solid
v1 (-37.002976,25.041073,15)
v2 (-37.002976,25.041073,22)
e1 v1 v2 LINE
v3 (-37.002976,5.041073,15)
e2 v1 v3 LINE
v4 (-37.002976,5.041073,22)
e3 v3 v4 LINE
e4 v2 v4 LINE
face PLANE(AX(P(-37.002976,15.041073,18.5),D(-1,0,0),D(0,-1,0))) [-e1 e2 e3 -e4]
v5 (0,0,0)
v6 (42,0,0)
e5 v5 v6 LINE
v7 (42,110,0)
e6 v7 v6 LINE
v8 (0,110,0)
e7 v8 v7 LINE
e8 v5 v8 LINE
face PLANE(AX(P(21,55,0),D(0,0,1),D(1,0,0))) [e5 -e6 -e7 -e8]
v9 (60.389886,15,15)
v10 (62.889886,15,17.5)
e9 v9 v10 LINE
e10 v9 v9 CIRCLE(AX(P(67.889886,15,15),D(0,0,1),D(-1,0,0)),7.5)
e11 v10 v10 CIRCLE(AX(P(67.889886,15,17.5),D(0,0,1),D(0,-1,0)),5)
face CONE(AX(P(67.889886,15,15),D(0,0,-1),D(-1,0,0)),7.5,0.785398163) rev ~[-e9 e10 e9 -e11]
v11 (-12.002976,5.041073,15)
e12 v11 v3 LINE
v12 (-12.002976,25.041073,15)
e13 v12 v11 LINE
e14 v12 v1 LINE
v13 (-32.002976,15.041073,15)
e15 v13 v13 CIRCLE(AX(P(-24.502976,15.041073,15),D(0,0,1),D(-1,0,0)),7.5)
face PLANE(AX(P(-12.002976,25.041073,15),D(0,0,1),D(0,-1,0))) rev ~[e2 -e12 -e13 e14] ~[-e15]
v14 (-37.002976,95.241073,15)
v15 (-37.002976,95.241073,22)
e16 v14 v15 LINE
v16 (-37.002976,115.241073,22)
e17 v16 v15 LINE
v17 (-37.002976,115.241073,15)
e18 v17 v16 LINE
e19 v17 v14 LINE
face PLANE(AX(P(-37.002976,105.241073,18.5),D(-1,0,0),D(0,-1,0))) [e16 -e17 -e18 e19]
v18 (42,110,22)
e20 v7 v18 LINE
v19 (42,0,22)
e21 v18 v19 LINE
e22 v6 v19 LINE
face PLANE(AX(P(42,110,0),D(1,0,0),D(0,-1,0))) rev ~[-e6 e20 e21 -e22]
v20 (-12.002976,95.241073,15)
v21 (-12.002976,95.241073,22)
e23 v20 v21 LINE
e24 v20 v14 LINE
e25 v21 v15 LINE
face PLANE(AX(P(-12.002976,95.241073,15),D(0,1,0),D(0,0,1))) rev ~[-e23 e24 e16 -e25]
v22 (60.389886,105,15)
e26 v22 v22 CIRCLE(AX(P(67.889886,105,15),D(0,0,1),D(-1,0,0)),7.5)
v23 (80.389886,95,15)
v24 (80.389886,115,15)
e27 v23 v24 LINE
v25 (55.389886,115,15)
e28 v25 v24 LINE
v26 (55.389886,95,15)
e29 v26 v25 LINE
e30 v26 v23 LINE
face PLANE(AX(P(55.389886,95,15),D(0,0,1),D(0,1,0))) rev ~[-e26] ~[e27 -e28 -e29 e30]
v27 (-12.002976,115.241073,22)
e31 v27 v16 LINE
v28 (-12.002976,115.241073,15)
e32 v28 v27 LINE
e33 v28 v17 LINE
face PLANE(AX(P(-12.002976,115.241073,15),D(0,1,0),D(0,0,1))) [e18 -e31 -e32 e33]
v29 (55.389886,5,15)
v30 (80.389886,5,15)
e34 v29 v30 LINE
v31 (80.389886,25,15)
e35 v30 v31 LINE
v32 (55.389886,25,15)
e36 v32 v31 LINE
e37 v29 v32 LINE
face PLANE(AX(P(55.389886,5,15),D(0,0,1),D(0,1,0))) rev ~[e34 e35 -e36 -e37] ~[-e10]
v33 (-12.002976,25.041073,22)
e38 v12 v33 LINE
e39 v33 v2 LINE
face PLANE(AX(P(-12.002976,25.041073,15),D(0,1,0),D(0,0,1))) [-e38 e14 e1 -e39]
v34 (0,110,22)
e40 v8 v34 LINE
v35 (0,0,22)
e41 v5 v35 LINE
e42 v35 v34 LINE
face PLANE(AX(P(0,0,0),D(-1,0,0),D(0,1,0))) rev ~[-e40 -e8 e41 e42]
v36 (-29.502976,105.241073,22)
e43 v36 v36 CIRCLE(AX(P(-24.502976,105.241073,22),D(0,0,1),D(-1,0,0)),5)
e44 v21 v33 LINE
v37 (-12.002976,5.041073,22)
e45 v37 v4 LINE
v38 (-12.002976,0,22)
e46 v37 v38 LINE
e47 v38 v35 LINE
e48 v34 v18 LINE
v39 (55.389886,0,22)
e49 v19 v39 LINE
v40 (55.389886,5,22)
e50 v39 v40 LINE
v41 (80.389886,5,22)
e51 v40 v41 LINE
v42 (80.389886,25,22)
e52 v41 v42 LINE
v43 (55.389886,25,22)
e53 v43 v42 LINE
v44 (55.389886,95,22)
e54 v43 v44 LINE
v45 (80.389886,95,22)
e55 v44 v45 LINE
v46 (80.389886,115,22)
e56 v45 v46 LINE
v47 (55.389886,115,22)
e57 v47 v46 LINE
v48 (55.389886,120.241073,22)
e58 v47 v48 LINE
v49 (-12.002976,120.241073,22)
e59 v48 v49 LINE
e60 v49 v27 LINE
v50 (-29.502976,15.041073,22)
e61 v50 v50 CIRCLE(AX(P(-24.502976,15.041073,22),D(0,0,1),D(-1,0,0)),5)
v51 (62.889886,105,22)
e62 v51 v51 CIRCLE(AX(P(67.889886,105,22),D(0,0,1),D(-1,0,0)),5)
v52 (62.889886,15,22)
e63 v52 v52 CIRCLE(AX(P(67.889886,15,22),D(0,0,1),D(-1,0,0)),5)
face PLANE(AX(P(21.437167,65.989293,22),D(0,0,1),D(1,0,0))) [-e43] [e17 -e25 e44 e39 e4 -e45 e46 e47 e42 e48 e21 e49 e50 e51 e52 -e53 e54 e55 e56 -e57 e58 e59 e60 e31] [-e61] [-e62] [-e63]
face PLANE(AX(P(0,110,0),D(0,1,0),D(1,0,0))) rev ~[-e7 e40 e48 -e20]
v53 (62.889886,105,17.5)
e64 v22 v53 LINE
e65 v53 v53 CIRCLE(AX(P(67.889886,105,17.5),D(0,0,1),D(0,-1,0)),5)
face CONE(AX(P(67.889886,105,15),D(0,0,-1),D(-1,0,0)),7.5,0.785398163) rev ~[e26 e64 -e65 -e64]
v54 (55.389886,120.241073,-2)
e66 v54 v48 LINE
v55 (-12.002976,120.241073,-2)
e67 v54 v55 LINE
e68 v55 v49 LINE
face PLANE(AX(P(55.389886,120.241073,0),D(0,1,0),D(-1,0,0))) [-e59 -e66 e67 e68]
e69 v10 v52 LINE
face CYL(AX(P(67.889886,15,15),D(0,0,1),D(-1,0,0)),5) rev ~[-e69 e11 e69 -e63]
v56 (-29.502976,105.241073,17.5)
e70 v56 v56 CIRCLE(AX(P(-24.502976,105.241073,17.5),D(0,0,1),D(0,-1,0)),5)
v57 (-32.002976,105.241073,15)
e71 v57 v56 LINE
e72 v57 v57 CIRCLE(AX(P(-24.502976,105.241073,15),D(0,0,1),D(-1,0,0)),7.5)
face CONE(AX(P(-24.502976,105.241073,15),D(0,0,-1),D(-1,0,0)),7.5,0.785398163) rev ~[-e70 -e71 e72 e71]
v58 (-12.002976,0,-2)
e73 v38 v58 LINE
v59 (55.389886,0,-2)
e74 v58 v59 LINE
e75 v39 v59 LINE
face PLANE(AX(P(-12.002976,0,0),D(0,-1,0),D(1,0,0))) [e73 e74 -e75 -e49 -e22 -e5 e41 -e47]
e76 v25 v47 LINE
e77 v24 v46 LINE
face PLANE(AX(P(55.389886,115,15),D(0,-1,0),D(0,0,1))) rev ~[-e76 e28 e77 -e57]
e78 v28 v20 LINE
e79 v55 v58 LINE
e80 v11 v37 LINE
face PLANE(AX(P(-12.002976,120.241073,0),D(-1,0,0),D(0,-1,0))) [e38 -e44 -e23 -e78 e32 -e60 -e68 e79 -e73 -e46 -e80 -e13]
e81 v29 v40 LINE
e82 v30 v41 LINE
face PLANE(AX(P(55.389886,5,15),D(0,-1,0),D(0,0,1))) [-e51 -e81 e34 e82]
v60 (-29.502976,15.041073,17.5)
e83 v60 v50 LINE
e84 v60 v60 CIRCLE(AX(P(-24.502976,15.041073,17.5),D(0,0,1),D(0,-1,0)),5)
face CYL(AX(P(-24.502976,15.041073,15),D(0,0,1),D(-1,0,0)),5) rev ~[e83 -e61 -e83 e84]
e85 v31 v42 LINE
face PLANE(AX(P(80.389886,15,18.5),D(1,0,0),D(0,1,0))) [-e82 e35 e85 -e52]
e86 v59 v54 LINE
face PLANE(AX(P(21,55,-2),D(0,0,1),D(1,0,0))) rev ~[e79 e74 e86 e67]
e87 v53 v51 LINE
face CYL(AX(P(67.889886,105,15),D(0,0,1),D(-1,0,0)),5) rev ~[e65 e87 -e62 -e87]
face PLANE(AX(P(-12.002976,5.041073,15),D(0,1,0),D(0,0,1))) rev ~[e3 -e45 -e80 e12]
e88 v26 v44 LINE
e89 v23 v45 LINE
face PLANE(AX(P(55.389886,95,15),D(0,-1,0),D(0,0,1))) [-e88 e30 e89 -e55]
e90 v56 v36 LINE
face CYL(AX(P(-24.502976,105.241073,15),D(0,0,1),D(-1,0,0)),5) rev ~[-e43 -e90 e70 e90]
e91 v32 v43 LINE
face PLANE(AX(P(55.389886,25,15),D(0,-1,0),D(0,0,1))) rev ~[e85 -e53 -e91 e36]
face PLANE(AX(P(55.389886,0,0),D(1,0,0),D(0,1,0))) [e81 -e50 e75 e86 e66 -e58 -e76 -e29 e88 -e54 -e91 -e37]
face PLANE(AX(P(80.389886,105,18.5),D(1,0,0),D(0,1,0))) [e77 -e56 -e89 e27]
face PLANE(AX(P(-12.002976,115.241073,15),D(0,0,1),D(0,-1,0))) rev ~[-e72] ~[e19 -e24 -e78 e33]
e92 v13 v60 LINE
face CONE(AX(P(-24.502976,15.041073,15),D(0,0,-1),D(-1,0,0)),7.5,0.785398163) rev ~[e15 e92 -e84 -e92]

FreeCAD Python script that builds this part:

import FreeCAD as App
import Part
import Sketcher
from FreeCAD import Vector
Q = App.Units.Quantity

doc = App.newDocument("Part")
body = doc.addObject("PartDesign::Body", "Body")

sketch1 = body.newObject("Sketcher::SketchObject", "Sketch")
sketch1.AttachmentSupport = (doc.getObject("XY_Plane"), [""])
sketch1.MapMode = "FlatFace"
sketch1.addGeometry(Part.LineSegment(Vector(-12.002976, 0, 0), Vector(0, 0, 0)), False)
sketch1.addGeometry(Part.LineSegment(Vector(0, 0, 0), Vector(0, 110, 0)), False)
sketch1.addGeometry(Part.LineSegment(Vector(0, 110, 0), Vector(42, 110, 0)), False)
sketch1.addGeometry(Part.LineSegment(Vector(42, 110, 0), Vector(42, 0, 0)), False)
sketch1.addGeometry(Part.LineSegment(Vector(42, 0, 0), Vector(55.389886, 0, 0)), False)
sketch1.addGeometry(Part.LineSegment(Vector(55.389886, 0, 0), Vector(55.389886, 120.241073, 0)), False)
sketch1.addGeometry(Part.LineSegment(Vector(55.389886, 120.241073, 0), Vector(-12.002976, 120.241073, 0)), False)
sketch1.addGeometry(Part.LineSegment(Vector(-12.002976, 120.241073, 0), Vector(-12.002976, 0, 0)), False)
sketch1.addConstraint(Sketcher.Constraint("Coincident", 0, 2, 1, 1))
sketch1.addConstraint(Sketcher.Constraint("Coincident", 1, 2, 2, 1))
sketch1.addConstraint(Sketcher.Constraint("Coincident", 2, 2, 3, 1))
sketch1.addConstraint(Sketcher.Constraint("Coincident", 3, 2, 4, 1))
sketch1.addConstraint(Sketcher.Constraint("Coincident", 4, 2, 5, 1))
sketch1.addConstraint(Sketcher.Constraint("Coincident", 5, 2, 6, 1))
sketch1.addConstraint(Sketcher.Constraint("Coincident", 6, 2, 7, 1))
sketch1.addConstraint(Sketcher.Constraint("Coincident", 7, 2, 0, 1))
sketch1.addConstraint(Sketcher.Constraint("Horizontal", 0))
sketch1.addConstraint(Sketcher.Constraint("Vertical", 1))
sketch1.addConstraint(Sketcher.Constraint("Horizontal", 2))
sketch1.addConstraint(Sketcher.Constraint("Vertical", 3))
sketch1.addConstraint(Sketcher.Constraint("Horizontal", 4))
sketch1.addConstraint(Sketcher.Constraint("Vertical", 5))
sketch1.addConstraint(Sketcher.Constraint("Horizontal", 6))
sketch1.addConstraint(Sketcher.Constraint("Vertical", 7))
sketch1.addConstraint(Sketcher.Constraint("Coincident", 0, 2, -1, 1))
sketch1.addConstraint(Sketcher.Constraint("PointOnObject", 3, 2, -1))
sketch1.addConstraint(Sketcher.Constraint("DistanceX", 2, 1, 2, 2, Q("42 mm")))
sketch1.addConstraint(Sketcher.Constraint("DistanceY", 1, 1, 1, 2, Q("110 mm")))
sketch1.addConstraint(Sketcher.Constraint("DistanceX", 6, 2, 6, 1, Q("67.392862 mm")))
sketch1.addConstraint(Sketcher.Constraint("DistanceX", 0, 1, 0, 2, Q("12.002976 mm")))
sketch1.addConstraint(Sketcher.Constraint("DistanceY", 5, 1, 5, 2, Q("120.241073 mm")))
pad1 = body.newObject("PartDesign::Pad", "Pad")
pad1.Profile = sketch1
pad1.Length = 22

sketch2 = body.newObject("Sketcher::SketchObject", "Sketch001")
sketch2.AttachmentSupport = (doc.getObject("XY_Plane"), [""])
sketch2.MapMode = "FlatFace"
sketch2.addGeometry(Part.LineSegment(Vector(55.389886, 0, 0), Vector(55.389886, 120.241073, 0)), False)
sketch2.addGeometry(Part.LineSegment(Vector(55.389886, 120.241073, 0), Vector(-12.002976, 120.241073, 0)), False)
sketch2.addGeometry(Part.LineSegment(Vector(-12.002976, 120.241073, 0), Vector(-12.002976, 0, 0)), False)
sketch2.addGeometry(Part.LineSegment(Vector(-12.002976, 0, 0), Vector(55.389886, 0, 0)), False)
sketch2.addConstraint(Sketcher.Constraint("Coincident", 0, 2, 1, 1))
sketch2.addConstraint(Sketcher.Constraint("Coincident", 1, 2, 2, 1))
sketch2.addConstraint(Sketcher.Constraint("Coincident", 2, 2, 3, 1))
sketch2.addConstraint(Sketcher.Constraint("Coincident", 3, 2, 0, 1))
sketch2.addConstraint(Sketcher.Constraint("Vertical", 0))
sketch2.addConstraint(Sketcher.Constraint("Horizontal", 1))
sketch2.addConstraint(Sketcher.Constraint("Vertical", 2))
sketch2.addConstraint(Sketcher.Constraint("Horizontal", 3))
sketch2.addConstraint(Sketcher.Constraint("PointOnObject", 2, 2, -1))
sketch2.addConstraint(Sketcher.Constraint("DistanceX", 1, 2, 1, 1, Q("67.392862 mm")))
sketch2.addConstraint(Sketcher.Constraint("DistanceY", 0, 1, 0, 2, Q("120.241073 mm")))
sketch2.addConstraint(Sketcher.Constraint("DistanceX", -1, 1, 0, 2, Q("55.389886 mm")))
pad2 = body.newObject("PartDesign::Pad", "Pad001")
pad2.Profile = sketch2
pad2.Length = 2
pad2.Reversed = True

sketch3 = body.newObject("Sketcher::SketchObject", "Sketch002")
sketch3.AttachmentSupport = (doc.getObject("YZ_Plane"), [""])
sketch3.MapMode = "FlatFace"
sketch3.AttachmentOffset = App.Placement(Vector(0, 0, 55.389886), App.Rotation())
sketch3.addGeometry(Part.LineSegment(Vector(5, 22, 0), Vector(5, 15, 0)), False)
sketch3.addGeometry(Part.LineSegment(Vector(5, 15, 0), Vector(25, 15, 0)), False)
sketch3.addGeometry(Part.LineSegment(Vector(25, 15, 0), Vector(25, 22, 0)), False)
sketch3.addGeometry(Part.LineSegment(Vector(25, 22, 0), Vector(5, 22, 0)), False)
sketch3.addGeometry(Part.LineSegment(Vector(95, 22, 0), Vector(95, 15, 0)), False)
sketch3.addGeometry(Part.LineSegment(Vector(95, 15, 0), Vector(115, 15, 0)), False)
sketch3.addGeometry(Part.LineSegment(Vector(115, 15, 0), Vector(115, 22, 0)), False)
sketch3.addGeometry(Part.LineSegment(Vector(115, 22, 0), Vector(95, 22, 0)), False)
sketch3.addConstraint(Sketcher.Constraint("Coincident", 0, 2, 1, 1))
sketch3.addConstraint(Sketcher.Constraint("Coincident", 1, 2, 2, 1))
sketch3.addConstraint(Sketcher.Constraint("Coincident", 2, 2, 3, 1))
sketch3.addConstraint(Sketcher.Constraint("Coincident", 3, 2, 0, 1))
sketch3.addConstraint(Sketcher.Constraint("Coincident", 4, 2, 5, 1))
sketch3.addConstraint(Sketcher.Constraint("Coincident", 5, 2, 6, 1))
sketch3.addConstraint(Sketcher.Constraint("Coincident", 6, 2, 7, 1))
sketch3.addConstraint(Sketcher.Constraint("Coincident", 7, 2, 4, 1))
sketch3.addConstraint(Sketcher.Constraint("Vertical", 0))
sketch3.addConstraint(Sketcher.Constraint("Horizontal", 1))
sketch3.addConstraint(Sketcher.Constraint("Vertical", 2))
sketch3.addConstraint(Sketcher.Constraint("Horizontal", 3))
sketch3.addConstraint(Sketcher.Constraint("Vertical", 4))
sketch3.addConstraint(Sketcher.Constraint("Horizontal", 5))
sketch3.addConstraint(Sketcher.Constraint("Vertical", 6))
sketch3.addConstraint(Sketcher.Constraint("Horizontal", 7))
sketch3.addConstraint(Sketcher.Constraint("Horizontal", 1, 2, 4, 2))
sketch3.addConstraint(Sketcher.Constraint("Horizontal", 3, 2, 6, 2))
sketch3.addConstraint(Sketcher.Constraint("Equal", 3, 5))
sketch3.addConstraint(Sketcher.Constraint("DistanceX", 1, 1, 1, 2, Q("20 mm")))
sketch3.addConstraint(Sketcher.Constraint("DistanceY", 0, 2, 0, 1, Q("7 mm")))
sketch3.addConstraint(Sketcher.Constraint("DistanceX", -1, 1, 0, 2, Q("5 mm")))
sketch3.addConstraint(Sketcher.Constraint("DistanceY", -1, 1, 0, 2, Q("15 mm")))
sketch3.addConstraint(Sketcher.Constraint("DistanceX", -1, 1, 4, 2, Q("95 mm")))
pad3 = body.newObject("PartDesign::Pad", "Pad002")
pad3.Profile = sketch3
pad3.Length = 25

sketch4 = body.newObject("Sketcher::SketchObject", "Sketch003")
sketch4.AttachmentSupport = (doc.getObject("YZ_Plane"), [""])
sketch4.MapMode = "FlatFace"
sketch4.AttachmentOffset = App.Placement(Vector(0, 0, -12.002976), App.Rotation())
sketch4.addGeometry(Part.LineSegment(Vector(115.241073, 22, 0), Vector(115.241073, 15, 0)), False)
sketch4.addGeometry(Part.LineSegment(Vector(115.241073, 15, 0), Vector(95.241073, 15, 0)), False)
sketch4.addGeometry(Part.LineSegment(Vector(95.241073, 15, 0), Vector(95.241073, 22, 0)), False)
sketch4.addGeometry(Part.LineSegment(Vector(95.241073, 22, 0), Vector(115.241073, 22, 0)), False)
sketch4.addGeometry(Part.LineSegment(Vector(25.041073, 22, 0), Vector(25.041073, 15, 0)), False)
sketch4.addGeometry(Part.LineSegment(Vector(25.041073, 15, 0), Vector(5.041073, 15, 0)), False)
sketch4.addGeometry(Part.LineSegment(Vector(5.041073, 15, 0), Vector(5.041073, 22, 0)), False)
sketch4.addGeometry(Part.LineSegment(Vector(5.041073, 22, 0), Vector(25.041073, 22, 0)), False)
sketch4.addConstraint(Sketcher.Constraint("Coincident", 0, 2, 1, 1))
sketch4.addConstraint(Sketcher.Constraint("Coincident", 1, 2, 2, 1))
sketch4.addConstraint(Sketcher.Constraint("Coincident", 2, 2, 3, 1))
sketch4.addConstraint(Sketcher.Constraint("Coincident", 3, 2, 0, 1))
sketch4.addConstraint(Sketcher.Constraint("Coincident", 4, 2, 5, 1))
sketch4.addConstraint(Sketcher.Constraint("Coincident", 5, 2, 6, 1))
sketch4.addConstraint(Sketcher.Constraint("Coincident", 6, 2, 7, 1))
sketch4.addConstraint(Sketcher.Constraint("Coincident", 7, 2, 4, 1))
sketch4.addConstraint(Sketcher.Constraint("Vertical", 0))
sketch4.addConstraint(Sketcher.Constraint("Horizontal", 1))
sketch4.addConstraint(Sketcher.Constraint("Vertical", 2))
sketch4.addConstraint(Sketcher.Constraint("Horizontal", 3))
sketch4.addConstraint(Sketcher.Constraint("Vertical", 4))
sketch4.addConstraint(Sketcher.Constraint("Horizontal", 5))
sketch4.addConstraint(Sketcher.Constraint("Vertical", 6))
sketch4.addConstraint(Sketcher.Constraint("Horizontal", 7))
sketch4.addConstraint(Sketcher.Constraint("Horizontal", 1, 2, 4, 2))
sketch4.addConstraint(Sketcher.Constraint("Horizontal", 3, 2, 6, 2))
sketch4.addConstraint(Sketcher.Constraint("Equal", 3, 5))
sketch4.addConstraint(Sketcher.Constraint("DistanceX", 1, 2, 1, 1, Q("20 mm")))
sketch4.addConstraint(Sketcher.Constraint("DistanceY", 0, 2, 0, 1, Q("7 mm")))
sketch4.addConstraint(Sketcher.Constraint("DistanceY", -1, 1, 0, 2, Q("15 mm")))
sketch4.addConstraint(Sketcher.Constraint("DistanceX", 4, 2, 1, 2, Q("70.2 mm")))
sketch4.addConstraint(Sketcher.Constraint("DistanceX", -1, 1, 0, 2, Q("115.241073 mm")))
pad4 = body.newObject("PartDesign::Pad", "Pad003")
pad4.Profile = sketch4
pad4.Length = 25
pad4.Reversed = True

sketch5 = body.newObject("Sketcher::SketchObject", "Sketch004")
sketch5.AttachmentSupport = (doc.getObject("XY_Plane"), [""])
sketch5.MapMode = "FlatFace"
sketch5.AttachmentOffset = App.Placement(Vector(0, 0, 15), App.Rotation())
sketch5.addGeometry(Part.Circle(Vector(67.889886, 105, 0), Vector(0, 0, 1), 5), False)
sketch5.addConstraint(Sketcher.Constraint("Diameter", 0, Q("10 mm")))
sketch5.addConstraint(Sketcher.Constraint("DistanceY", -1, 1, 0, 3, Q("105 mm")))
sketch5.addConstraint(Sketcher.Constraint("DistanceX", -1, 1, 0, 3, Q("67.889886 mm")))
doc.recompute()
hole = body.newObject("PartDesign::Hole", "Hole")
hole.Profile = sketch5
hole.ThreadType = "None"
hole.Diameter = 10
hole.DepthType = "ThroughAll"
hole.HoleCutType = "Countersink"
hole.HoleCutDiameter = 15
hole.HoleCutCountersinkAngle = 90
hole.Reversed = True

sketch6 = body.newObject("Sketcher::SketchObject", "Sketch005")
sketch6.AttachmentSupport = (doc.getObject("XY_Plane"), [""])
sketch6.MapMode = "FlatFace"
sketch6.AttachmentOffset = App.Placement(Vector(0, 0, 15), App.Rotation())
sketch6.addGeometry(Part.Circle(Vector(67.889886, 15, 0), Vector(0, 0, 1), 5), False)
sketch6.addConstraint(Sketcher.Constraint("Diameter", 0, Q("10 mm")))
sketch6.addConstraint(Sketcher.Constraint("DistanceY", -1, 1, 0, 3, Q("15 mm")))
sketch6.addConstraint(Sketcher.Constraint("DistanceX", -1, 1, 0, 3, Q("67.889886 mm")))
doc.recompute()
hole2 = body.newObject("PartDesign::Hole", "Hole001")
hole2.Profile = sketch6
hole2.ThreadType = "None"
hole2.Diameter = 10
hole2.DepthType = "ThroughAll"
hole2.HoleCutType = "Countersink"
hole2.HoleCutDiameter = 15
hole2.HoleCutCountersinkAngle = 90
hole2.Reversed = True

sketch7 = body.newObject("Sketcher::SketchObject", "Sketch006")
sketch7.AttachmentSupport = (doc.getObject("XY_Plane"), [""])
sketch7.MapMode = "FlatFace"
sketch7.AttachmentOffset = App.Placement(Vector(0, 0, 15), App.Rotation())
sketch7.addGeometry(Part.Circle(Vector(-24.502976, 15.041073, 0), Vector(0, 0, 1), 5), False)
sketch7.addConstraint(Sketcher.Constraint("Diameter", 0, Q("10 mm")))
sketch7.addConstraint(Sketcher.Constraint("DistanceX", 0, 3, -1, 1, Q("24.502976 mm")))
sketch7.addConstraint(Sketcher.Constraint("DistanceY", -1, 1, 0, 3, Q("15.041073 mm")))
doc.recompute()
hole3 = body.newObject("PartDesign::Hole", "Hole002")
hole3.Profile = sketch7
hole3.ThreadType = "None"
hole3.Diameter = 10
hole3.DepthType = "ThroughAll"
hole3.HoleCutType = "Countersink"
hole3.HoleCutDiameter = 15
hole3.HoleCutCountersinkAngle = 90
hole3.Reversed = True

sketch8 = body.newObject("Sketcher::SketchObject", "Sketch007")
sketch8.AttachmentSupport = (doc.getObject("XY_Plane"), [""])
sketch8.MapMode = "FlatFace"
sketch8.AttachmentOffset = App.Placement(Vector(0, 0, 15), App.Rotation())
sketch8.addGeometry(Part.Circle(Vector(-24.502976, 105.241073, 0), Vector(0, 0, 1), 5), False)
sketch8.addConstraint(Sketcher.Constraint("Diameter", 0, Q("10 mm")))
sketch8.addConstraint(Sketcher.Constraint("DistanceX", 0, 3, -1, 1, Q("24.502976 mm")))
sketch8.addConstraint(Sketcher.Constraint("DistanceY", -1, 1, 0, 3, Q("105.241073 mm")))
doc.recompute()
hole4 = body.newObject("PartDesign::Hole", "Hole003")
hole4.Profile = sketch8
hole4.ThreadType = "None"
hole4.Diameter = 10
hole4.DepthType = "ThroughAll"
hole4.HoleCutType = "Countersink"
hole4.HoleCutDiameter = 15
hole4.HoleCutCountersinkAngle = 90
hole4.Reversed = True

doc.recompute()
